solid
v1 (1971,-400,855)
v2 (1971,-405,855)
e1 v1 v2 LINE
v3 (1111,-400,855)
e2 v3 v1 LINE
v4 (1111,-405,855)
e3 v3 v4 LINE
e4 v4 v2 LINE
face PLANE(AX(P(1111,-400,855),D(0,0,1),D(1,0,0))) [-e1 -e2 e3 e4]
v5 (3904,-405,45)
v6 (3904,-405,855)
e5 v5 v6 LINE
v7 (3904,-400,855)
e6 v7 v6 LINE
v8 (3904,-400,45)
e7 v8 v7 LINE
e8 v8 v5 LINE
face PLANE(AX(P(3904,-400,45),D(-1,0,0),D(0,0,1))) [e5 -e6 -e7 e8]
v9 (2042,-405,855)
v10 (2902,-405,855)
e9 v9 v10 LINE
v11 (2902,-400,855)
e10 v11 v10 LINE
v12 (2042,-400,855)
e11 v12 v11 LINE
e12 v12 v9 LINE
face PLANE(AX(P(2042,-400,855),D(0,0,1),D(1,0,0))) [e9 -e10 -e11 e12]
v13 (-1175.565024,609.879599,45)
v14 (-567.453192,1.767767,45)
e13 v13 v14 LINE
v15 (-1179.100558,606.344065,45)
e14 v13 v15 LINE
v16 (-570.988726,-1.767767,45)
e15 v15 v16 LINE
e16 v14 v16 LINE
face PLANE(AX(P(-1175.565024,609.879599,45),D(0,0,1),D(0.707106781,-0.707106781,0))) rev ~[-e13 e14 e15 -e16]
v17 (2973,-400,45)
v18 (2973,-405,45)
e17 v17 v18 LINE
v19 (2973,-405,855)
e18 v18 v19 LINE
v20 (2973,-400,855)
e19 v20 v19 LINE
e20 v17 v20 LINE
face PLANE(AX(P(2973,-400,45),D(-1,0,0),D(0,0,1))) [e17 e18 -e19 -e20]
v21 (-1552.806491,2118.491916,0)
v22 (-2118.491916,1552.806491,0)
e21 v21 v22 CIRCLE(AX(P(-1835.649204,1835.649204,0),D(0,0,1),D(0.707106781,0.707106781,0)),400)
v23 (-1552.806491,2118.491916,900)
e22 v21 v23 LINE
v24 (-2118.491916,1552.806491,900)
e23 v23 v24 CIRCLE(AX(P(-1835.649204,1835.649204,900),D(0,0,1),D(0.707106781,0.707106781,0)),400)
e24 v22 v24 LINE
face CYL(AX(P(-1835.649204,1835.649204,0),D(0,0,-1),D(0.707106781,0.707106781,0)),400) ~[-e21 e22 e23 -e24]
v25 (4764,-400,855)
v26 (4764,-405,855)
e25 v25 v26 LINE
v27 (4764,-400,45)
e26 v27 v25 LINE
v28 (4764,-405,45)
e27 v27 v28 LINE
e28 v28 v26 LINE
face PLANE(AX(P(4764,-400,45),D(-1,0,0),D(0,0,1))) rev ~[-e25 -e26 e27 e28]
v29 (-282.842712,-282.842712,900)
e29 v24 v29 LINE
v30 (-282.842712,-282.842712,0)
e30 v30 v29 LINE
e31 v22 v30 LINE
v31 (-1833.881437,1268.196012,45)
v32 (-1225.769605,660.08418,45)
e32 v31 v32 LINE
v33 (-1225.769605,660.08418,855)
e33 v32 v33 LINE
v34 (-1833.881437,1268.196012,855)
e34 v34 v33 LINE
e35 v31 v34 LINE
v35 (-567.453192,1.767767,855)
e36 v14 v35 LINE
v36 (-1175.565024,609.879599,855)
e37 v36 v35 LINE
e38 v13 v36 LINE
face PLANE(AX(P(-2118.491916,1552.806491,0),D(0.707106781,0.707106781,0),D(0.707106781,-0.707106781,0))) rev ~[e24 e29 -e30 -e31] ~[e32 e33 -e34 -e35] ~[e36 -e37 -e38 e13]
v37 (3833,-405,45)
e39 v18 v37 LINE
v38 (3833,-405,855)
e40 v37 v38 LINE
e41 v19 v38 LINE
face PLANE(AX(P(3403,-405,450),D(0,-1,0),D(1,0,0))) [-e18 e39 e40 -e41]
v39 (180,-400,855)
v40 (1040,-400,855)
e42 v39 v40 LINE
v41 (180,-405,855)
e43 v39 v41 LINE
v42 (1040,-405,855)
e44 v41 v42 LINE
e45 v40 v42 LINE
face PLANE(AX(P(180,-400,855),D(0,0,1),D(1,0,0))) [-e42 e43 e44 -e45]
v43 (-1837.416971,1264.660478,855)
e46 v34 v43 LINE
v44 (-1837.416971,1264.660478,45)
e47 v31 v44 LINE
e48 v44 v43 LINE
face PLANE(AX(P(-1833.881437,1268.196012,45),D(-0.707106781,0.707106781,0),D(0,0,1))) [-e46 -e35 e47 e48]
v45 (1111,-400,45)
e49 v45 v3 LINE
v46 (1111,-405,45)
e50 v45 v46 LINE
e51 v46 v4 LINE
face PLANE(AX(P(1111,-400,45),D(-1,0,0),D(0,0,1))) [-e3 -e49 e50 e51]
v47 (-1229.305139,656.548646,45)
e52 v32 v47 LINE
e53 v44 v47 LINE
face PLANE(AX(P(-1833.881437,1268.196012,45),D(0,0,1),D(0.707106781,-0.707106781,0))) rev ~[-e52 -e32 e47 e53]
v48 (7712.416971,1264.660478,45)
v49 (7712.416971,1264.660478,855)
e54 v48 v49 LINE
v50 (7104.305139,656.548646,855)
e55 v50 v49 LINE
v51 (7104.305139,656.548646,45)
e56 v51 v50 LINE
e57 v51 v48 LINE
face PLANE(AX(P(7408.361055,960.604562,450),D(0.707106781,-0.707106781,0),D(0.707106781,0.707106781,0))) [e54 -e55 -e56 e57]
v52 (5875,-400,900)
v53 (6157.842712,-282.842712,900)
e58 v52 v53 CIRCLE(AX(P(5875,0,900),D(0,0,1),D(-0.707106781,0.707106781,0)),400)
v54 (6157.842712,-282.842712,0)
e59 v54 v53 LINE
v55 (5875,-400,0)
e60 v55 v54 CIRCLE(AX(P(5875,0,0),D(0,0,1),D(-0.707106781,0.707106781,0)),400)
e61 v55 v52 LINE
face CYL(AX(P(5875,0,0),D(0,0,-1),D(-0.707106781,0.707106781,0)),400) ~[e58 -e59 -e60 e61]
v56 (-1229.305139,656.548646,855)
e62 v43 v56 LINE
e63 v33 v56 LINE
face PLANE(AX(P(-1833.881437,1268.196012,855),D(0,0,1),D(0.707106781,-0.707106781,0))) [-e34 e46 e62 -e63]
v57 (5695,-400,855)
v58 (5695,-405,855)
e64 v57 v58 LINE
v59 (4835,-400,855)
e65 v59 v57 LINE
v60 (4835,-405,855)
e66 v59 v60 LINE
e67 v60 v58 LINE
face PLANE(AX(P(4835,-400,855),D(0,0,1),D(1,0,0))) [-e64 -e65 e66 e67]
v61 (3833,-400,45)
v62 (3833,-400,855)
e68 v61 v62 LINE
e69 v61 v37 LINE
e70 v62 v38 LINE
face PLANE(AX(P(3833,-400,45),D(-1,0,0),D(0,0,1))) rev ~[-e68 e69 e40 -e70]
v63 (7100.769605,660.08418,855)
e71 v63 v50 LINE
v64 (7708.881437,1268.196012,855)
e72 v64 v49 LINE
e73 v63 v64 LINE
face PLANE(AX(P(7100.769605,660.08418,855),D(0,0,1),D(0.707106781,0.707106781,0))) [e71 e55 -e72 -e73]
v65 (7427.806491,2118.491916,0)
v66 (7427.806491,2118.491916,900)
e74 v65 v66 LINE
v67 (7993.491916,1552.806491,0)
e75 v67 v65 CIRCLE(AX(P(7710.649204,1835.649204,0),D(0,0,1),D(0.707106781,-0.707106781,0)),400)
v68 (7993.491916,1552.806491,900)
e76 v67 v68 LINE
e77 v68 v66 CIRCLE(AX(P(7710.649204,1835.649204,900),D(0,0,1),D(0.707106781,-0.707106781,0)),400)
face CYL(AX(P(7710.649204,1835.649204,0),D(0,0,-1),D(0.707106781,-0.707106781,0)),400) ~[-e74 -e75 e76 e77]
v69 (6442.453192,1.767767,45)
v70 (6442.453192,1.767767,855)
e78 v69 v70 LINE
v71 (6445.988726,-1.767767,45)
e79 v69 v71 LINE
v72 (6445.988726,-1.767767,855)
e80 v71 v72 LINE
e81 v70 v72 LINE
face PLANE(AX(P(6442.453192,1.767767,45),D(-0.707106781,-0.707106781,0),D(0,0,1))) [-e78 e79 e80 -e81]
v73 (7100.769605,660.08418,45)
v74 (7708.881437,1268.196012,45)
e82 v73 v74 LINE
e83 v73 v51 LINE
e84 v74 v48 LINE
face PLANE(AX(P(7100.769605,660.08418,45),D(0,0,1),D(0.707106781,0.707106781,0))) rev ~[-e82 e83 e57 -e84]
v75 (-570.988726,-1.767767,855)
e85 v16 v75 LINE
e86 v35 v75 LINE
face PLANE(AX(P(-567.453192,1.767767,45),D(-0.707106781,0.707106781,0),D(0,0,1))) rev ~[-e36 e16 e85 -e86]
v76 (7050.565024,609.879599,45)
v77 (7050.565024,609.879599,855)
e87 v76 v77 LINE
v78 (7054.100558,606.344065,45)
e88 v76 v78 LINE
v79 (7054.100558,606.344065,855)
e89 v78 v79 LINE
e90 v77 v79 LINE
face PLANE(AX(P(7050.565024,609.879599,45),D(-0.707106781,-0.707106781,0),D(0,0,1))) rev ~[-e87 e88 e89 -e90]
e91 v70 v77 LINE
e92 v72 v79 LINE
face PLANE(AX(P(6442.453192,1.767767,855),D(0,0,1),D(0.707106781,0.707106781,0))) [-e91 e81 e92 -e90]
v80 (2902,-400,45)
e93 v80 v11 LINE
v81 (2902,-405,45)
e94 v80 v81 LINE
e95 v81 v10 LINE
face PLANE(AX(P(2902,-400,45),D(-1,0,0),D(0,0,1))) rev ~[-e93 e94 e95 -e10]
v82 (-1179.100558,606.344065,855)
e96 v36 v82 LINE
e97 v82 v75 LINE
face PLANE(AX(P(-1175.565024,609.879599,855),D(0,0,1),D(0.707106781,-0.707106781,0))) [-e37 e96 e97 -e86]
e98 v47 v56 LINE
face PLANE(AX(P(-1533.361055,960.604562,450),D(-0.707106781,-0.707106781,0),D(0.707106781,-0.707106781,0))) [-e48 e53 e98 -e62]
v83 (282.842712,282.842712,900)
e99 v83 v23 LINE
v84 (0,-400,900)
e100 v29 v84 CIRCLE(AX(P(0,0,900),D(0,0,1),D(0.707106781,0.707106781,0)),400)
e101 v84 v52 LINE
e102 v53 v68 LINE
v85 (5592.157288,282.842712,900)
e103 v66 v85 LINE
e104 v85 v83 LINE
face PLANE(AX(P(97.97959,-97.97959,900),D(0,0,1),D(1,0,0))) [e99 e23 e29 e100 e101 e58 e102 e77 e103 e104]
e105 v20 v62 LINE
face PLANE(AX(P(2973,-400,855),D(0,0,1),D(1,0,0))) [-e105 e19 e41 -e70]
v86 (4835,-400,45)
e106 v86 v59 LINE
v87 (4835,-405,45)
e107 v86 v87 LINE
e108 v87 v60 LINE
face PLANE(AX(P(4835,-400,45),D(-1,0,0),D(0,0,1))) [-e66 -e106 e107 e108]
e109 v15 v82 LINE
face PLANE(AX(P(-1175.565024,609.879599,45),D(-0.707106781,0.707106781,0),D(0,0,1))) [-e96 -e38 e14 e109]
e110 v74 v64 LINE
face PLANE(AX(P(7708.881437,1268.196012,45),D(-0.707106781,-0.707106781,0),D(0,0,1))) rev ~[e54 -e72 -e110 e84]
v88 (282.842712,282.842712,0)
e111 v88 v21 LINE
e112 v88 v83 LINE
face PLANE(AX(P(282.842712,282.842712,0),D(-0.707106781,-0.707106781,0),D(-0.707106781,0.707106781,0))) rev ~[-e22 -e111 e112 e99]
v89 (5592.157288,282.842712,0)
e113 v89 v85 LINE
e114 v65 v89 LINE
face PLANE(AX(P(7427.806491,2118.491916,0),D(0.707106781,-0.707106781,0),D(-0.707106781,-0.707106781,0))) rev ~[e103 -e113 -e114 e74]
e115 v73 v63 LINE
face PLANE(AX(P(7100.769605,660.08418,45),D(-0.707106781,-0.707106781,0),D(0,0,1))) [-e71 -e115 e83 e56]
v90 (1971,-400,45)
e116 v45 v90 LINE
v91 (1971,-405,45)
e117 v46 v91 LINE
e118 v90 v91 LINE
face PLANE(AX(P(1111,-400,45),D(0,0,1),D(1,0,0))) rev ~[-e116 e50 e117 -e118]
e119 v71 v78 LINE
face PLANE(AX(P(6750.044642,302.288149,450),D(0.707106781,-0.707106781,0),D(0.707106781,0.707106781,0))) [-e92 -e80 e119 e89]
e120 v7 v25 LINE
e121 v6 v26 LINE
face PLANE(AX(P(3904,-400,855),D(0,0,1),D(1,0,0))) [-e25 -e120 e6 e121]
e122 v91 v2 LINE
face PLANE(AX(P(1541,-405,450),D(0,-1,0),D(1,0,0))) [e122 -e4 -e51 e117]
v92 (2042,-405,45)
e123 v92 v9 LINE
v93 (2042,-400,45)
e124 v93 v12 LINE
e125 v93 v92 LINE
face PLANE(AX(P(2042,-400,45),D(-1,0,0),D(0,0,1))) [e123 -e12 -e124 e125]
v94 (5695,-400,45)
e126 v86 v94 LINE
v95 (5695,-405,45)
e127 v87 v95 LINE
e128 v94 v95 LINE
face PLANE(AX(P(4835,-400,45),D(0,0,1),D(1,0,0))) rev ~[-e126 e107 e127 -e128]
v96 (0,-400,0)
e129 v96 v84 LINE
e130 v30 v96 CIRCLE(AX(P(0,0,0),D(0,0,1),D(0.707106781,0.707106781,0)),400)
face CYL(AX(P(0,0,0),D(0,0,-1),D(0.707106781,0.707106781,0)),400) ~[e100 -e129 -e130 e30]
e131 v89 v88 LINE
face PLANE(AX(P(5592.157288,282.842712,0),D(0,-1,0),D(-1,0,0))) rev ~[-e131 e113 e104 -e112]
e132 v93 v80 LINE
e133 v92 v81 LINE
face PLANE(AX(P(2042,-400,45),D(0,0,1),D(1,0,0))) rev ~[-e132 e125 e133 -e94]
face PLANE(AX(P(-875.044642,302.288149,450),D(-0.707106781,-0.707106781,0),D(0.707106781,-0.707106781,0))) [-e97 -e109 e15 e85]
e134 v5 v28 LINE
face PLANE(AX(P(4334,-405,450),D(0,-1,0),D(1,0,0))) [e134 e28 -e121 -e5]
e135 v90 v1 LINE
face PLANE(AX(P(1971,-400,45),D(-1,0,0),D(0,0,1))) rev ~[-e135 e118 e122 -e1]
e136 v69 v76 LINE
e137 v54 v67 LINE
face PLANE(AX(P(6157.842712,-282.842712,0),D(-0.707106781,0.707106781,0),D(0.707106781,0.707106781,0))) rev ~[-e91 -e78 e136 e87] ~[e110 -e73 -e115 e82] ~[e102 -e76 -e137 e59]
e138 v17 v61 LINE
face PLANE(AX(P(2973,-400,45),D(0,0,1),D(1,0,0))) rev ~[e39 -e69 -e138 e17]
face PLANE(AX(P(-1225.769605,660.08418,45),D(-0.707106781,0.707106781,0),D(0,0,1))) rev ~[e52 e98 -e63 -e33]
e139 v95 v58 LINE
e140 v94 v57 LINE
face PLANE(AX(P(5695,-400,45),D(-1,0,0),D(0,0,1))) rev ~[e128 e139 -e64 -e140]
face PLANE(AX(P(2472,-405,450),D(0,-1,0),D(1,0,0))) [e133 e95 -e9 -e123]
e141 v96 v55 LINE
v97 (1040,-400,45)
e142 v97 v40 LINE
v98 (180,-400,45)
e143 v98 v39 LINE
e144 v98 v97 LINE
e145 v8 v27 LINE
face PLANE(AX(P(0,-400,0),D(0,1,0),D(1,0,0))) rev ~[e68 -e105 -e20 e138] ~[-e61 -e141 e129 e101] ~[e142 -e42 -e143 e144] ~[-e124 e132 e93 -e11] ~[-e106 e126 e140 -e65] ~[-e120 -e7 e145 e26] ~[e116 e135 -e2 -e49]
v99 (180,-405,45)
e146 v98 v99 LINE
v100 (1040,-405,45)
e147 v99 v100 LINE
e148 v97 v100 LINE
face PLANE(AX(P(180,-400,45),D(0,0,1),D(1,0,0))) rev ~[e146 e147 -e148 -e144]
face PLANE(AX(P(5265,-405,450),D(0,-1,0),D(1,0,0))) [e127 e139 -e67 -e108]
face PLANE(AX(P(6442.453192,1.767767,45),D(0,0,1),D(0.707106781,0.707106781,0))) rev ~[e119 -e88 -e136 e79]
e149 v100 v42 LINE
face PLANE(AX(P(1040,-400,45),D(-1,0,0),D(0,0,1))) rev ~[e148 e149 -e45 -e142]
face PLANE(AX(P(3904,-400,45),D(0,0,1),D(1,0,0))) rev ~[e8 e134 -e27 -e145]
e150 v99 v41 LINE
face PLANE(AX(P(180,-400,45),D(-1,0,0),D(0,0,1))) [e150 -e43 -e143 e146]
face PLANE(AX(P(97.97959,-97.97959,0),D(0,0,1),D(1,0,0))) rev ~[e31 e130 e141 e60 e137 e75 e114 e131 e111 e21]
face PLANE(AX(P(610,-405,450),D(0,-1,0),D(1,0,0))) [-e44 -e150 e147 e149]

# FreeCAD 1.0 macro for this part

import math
import FreeCAD as App
import Part
import Sketcher

V = App.Vector

doc = App.newDocument("Part")
body = doc.addObject("PartDesign::Body", "Body")

# Sketch on XY plane
sketch1 = body.newObject("Sketcher::SketchObject", "Sketch")
sketch1.AttachmentSupport = (doc.getObject("XY_Plane"), [""])
sketch1.MapMode = "FlatFace"
sketch1.addGeometry([
    Part.LineSegment(V(0, -400, 0), V(5875, -400, 0)),  # 0
    Part.ArcOfCircle(Part.Circle(V(5875, 0, 0), V(0, 0, 1), 400), math.radians(-90), math.radians(-45)),  # 1
    Part.LineSegment(V(6158, -283, 0), V(7993, 1553, 0)),  # 2
    Part.ArcOfCircle(Part.Circle(V(7711, 1836, 0), V(0, 0, 1), 400), math.radians(-45), math.radians(135)),  # 3
    Part.LineSegment(V(7428, 2118, 0), V(5592, 283, 0)),  # 4
    Part.LineSegment(V(5592, 283, 0), V(283, 283, 0)),  # 5
    Part.LineSegment(V(283, 283, 0), V(-1553, 2118, 0)),  # 6
    Part.ArcOfCircle(Part.Circle(V(-1836, 1836, 0), V(0, 0, 1), 400), math.radians(45), math.radians(225)),  # 7
    Part.LineSegment(V(-2118, 1553, 0), V(-283, -283, 0)),  # 8
    Part.ArcOfCircle(Part.Circle(V(0, 0, 0), V(0, 0, 1), 400), math.radians(-135), math.radians(-90)),  # 9
], False)
sketch1.addConstraint([
    Sketcher.Constraint("Tangent", 0, 2, 1, 1),
    Sketcher.Constraint("Tangent", 1, 2, 2, 1),
    Sketcher.Constraint("Tangent", 2, 2, 3, 1),
    Sketcher.Constraint("Tangent", 3, 2, 4, 1),
    Sketcher.Constraint("Coincident", 4, 2, 5, 1),
    Sketcher.Constraint("Coincident", 5, 2, 6, 1),
    Sketcher.Constraint("Tangent", 6, 2, 7, 1),
    Sketcher.Constraint("Tangent", 7, 2, 8, 1),
    Sketcher.Constraint("Tangent", 8, 2, 9, 1),
    Sketcher.Constraint("Tangent", 9, 2, 0, 1),
    Sketcher.Constraint("Horizontal", 0),
    Sketcher.Constraint("Horizontal", 5),
    Sketcher.Constraint("Coincident", 9, 3, -1, 1),
    Sketcher.Constraint("Equal", 1, 3),
    Sketcher.Constraint("Equal", 3, 7),
    Sketcher.Constraint("Equal", 7, 9),
    Sketcher.Constraint("Symmetric", 5, 2, 8, 2, -1, 1),
    Sketcher.Constraint("Parallel", 2, 4),
    Sketcher.Constraint("Perpendicular", 4, 6),
    Sketcher.Constraint("Horizontal", 3, 3, 7, 3),
    Sketcher.Constraint("Equal", 2, 4),
    Sketcher.Constraint("Radius", 1, 400.0),
    Sketcher.Constraint("DistanceX", 0, 1, 0, 2, 5875.0),
    Sketcher.Constraint("Distance", 2, 2596.0),
])
pad1 = body.newObject("PartDesign::Pad", "Pad")
pad1.Profile = sketch1
pad1.Length = 900

# Sketch on XZ plane
sketch2 = body.newObject("Sketcher::SketchObject", "Sketch001")
sketch2.AttachmentSupport = (doc.getObject("XZ_Plane"), [""])
sketch2.MapMode = "FlatFace"
sketch2.AttachmentOffset = App.Placement(V(0, 0, 400), App.Rotation())
sketch2.addGeometry([
    Part.LineSegment(V(180, 855, 0), V(180, 45, 0)),  # 0
    Part.LineSegment(V(180, 45, 0), V(1040, 45, 0)),  # 1
    Part.LineSegment(V(1040, 45, 0), V(1040, 855, 0)),  # 2
    Part.LineSegment(V(1040, 855, 0), V(180, 855, 0)),  # 3
    Part.LineSegment(V(1111, 855, 0), V(1111, 45, 0)),  # 4
    Part.LineSegment(V(1111, 45, 0), V(1971, 45, 0)),  # 5
    Part.LineSegment(V(1971, 45, 0), V(1971, 855, 0)),  # 6
    Part.LineSegment(V(1971, 855, 0), V(1111, 855, 0)),  # 7
    Part.LineSegment(V(2042, 855, 0), V(2042, 45, 0)),  # 8
    Part.LineSegment(V(2042, 45, 0), V(2902, 45, 0)),  # 9
    Part.LineSegment(V(2902, 45, 0), V(2902, 855, 0)),  # 10
    Part.LineSegment(V(2902, 855, 0), V(2042, 855, 0)),  # 11
    Part.LineSegment(V(2973, 855, 0), V(2973, 45, 0)),  # 12
    Part.LineSegment(V(2973, 45, 0), V(3833, 45, 0)),  # 13
    Part.LineSegment(V(3833, 45, 0), V(3833, 855, 0)),  # 14
    Part.LineSegment(V(3833, 855, 0), V(2973, 855, 0)),  # 15
    Part.LineSegment(V(3904, 855, 0), V(3904, 45, 0)),  # 16
    Part.LineSegment(V(3904, 45, 0), V(4764, 45, 0)),  # 17
    Part.LineSegment(V(4764, 45, 0), V(4764, 855, 0)),  # 18
    Part.LineSegment(V(4764, 855, 0), V(3904, 855, 0)),  # 19
    Part.LineSegment(V(4835, 855, 0), V(4835, 45, 0)),  # 20
    Part.LineSegment(V(4835, 45, 0), V(5695, 45, 0)),  # 21
    Part.LineSegment(V(5695, 45, 0), V(5695, 855, 0)),  # 22
    Part.LineSegment(V(5695, 855, 0), V(4835, 855, 0)),  # 23
], False)
sketch2.addConstraint([
    Sketcher.Constraint("Coincident", 0, 2, 1, 1),
    Sketcher.Constraint("Coincident", 1, 2, 2, 1),
    Sketcher.Constraint("Coincident", 2, 2, 3, 1),
    Sketcher.Constraint("Coincident", 3, 2, 0, 1),
    Sketcher.Constraint("Coincident", 4, 2, 5, 1),
    Sketcher.Constraint("Coincident", 5, 2, 6, 1),
    Sketcher.Constraint("Coincident", 6, 2, 7, 1),
    Sketcher.Constraint("Coincident", 7, 2, 4, 1),
    Sketcher.Constraint("Coincident", 8, 2, 9, 1),
    Sketcher.Constraint("Coincident", 9, 2, 10, 1),
    Sketcher.Constraint("Coincident", 10, 2, 11, 1),
    Sketcher.Constraint("Coincident", 11, 2, 8, 1),
    Sketcher.Constraint("Coincident", 12, 2, 13, 1),
    Sketcher.Constraint("Coincident", 13, 2, 14, 1),
    Sketcher.Constraint("Coincident", 14, 2, 15, 1),
    Sketcher.Constraint("Coincident", 15, 2, 12, 1),
    Sketcher.Constraint("Coincident", 16, 2, 17, 1),
    Sketcher.Constraint("Coincident", 17, 2, 18, 1),
    Sketcher.Constraint("Coincident", 18, 2, 19, 1),
    Sketcher.Constraint("Coincident", 19, 2, 16, 1),
    Sketcher.Constraint("Coincident", 20, 2, 21, 1),
    Sketcher.Constraint("Coincident", 21, 2, 22, 1),
    Sketcher.Constraint("Coincident", 22, 2, 23, 1),
    Sketcher.Constraint("Coincident", 23, 2, 20, 1),
    Sketcher.Constraint("Vertical", 0),
    Sketcher.Constraint("Horizontal", 1),
    Sketcher.Constraint("Vertical", 2),
    Sketcher.Constraint("Horizontal", 3),
    Sketcher.Constraint("Vertical", 4),
    Sketcher.Constraint("Horizontal", 5),
    Sketcher.Constraint("Vertical", 6),
    Sketcher.Constraint("Horizontal", 7),
    Sketcher.Constraint("Vertical", 8),
    Sketcher.Constraint("Horizontal", 9),
    Sketcher.Constraint("Vertical", 10),
    Sketcher.Constraint("Horizontal", 11),
    Sketcher.Constraint("Vertical", 12),
    Sketcher.Constraint("Horizontal", 13),
    Sketcher.Constraint("Vertical", 14),
    Sketcher.Constraint("Horizontal", 15),
    Sketcher.Constraint("Vertical", 16),
    Sketcher.Constraint("Horizontal", 17),
    Sketcher.Constraint("Vertical", 18),
    Sketcher.Constraint("Horizontal", 19),
    Sketcher.Constraint("Vertical", 20),
    Sketcher.Constraint("Horizontal", 21),
    Sketcher.Constraint("Vertical", 22),
    Sketcher.Constraint("Horizontal", 23),
    Sketcher.Constraint("Horizontal", 1, 2, 4, 2),
    Sketcher.Constraint("Horizontal", 3, 2, 6, 2),
    Sketcher.Constraint("Horizontal", 5, 2, 8, 2),
    Sketcher.Constraint("Horizontal", 7, 2, 10, 2),
    Sketcher.Constraint("Horizontal", 9, 2, 12, 2),
    Sketcher.Constraint("Horizontal", 11, 2, 14, 2),
    Sketcher.Constraint("Horizontal", 13, 2, 16, 2),
    Sketcher.Constraint("Horizontal", 15, 2, 18, 2),
    Sketcher.Constraint("Horizontal", 17, 2, 20, 2),
    Sketcher.Constraint("Horizontal", 19, 2, 22, 2),
    Sketcher.Constraint("Equal", 3, 5),
    Sketcher.Constraint("Equal", 7, 9),
    Sketcher.Constraint("Equal", 11, 13),
    Sketcher.Constraint("Equal", 15, 17),
    Sketcher.Constraint("Equal", 19, 21),
    Sketcher.Constraint("DistanceX", 1, 1, 1, 2, 860.0),
    Sketcher.Constraint("DistanceY", 0, 2, 0, 1, 810.0),
    Sketcher.Constraint("DistanceX", -1, 1, 0, 2, 180.0),
    Sketcher.Constraint("DistanceY", -1, 1, 0, 2, 45.0),
    Sketcher.Constraint("DistanceX", -1, 1, 4, 2, 1111.0),
    Sketcher.Constraint("DistanceX", -1, 1, 8, 2, 2042.0),
    Sketcher.Constraint("DistanceX", -1, 1, 12, 2, 2973.0),
    Sketcher.Constraint("DistanceX", -1, 1, 16, 2, 3904.0),
    Sketcher.Constraint("DistanceX", -1, 1, 20, 2, 4835.0),
])
pad2 = body.newObject("PartDesign::Pad", "Pad001")
pad2.Profile = sketch2
pad2.Length = 5

# Sketch on an angled plane
sketch3 = body.newObject("Sketcher::SketchObject", "Sketch002")
sketch3.Placement = App.Placement(V(-282.842712, -282.842712, 0), App.Rotation(V(0.707106781, -0.707106781, 0), V(0, 0, 0.999999999), V(-0.707106781, -0.707106781, 0), "ZXY"))
sketch3.addGeometry([
    Part.LineSegment(V(-2193, 855, 0), V(-2193, 45, 0)),  # 0
    Part.LineSegment(V(-2193, 45, 0), V(-1333, 45, 0)),  # 1
    Part.LineSegment(V(-1333, 45, 0), V(-1333, 855, 0)),  # 2
    Part.LineSegment(V(-1333, 855, 0), V(-2193, 855, 0)),  # 3
    Part.LineSegment(V(-1262, 855, 0), V(-1262, 45, 0)),  # 4
    Part.LineSegment(V(-1262, 45, 0), V(-402, 45, 0)),  # 5
    Part.LineSegment(V(-402, 45, 0), V(-402, 855, 0)),  # 6
    Part.LineSegment(V(-402, 855, 0), V(-1262, 855, 0)),  # 7
], False)
sketch3.addConstraint([
    Sketcher.Constraint("Coincident", 0, 2, 1, 1),
    Sketcher.Constraint("Coincident", 1, 2, 2, 1),
    Sketcher.Constraint("Coincident", 2, 2, 3, 1),
    Sketcher.Constraint("Coincident", 3, 2, 0, 1),
    Sketcher.Constraint("Coincident", 4, 2, 5, 1),
    Sketcher.Constraint("Coincident", 5, 2, 6, 1),
    Sketcher.Constraint("Coincident", 6, 2, 7, 1),
    Sketcher.Constraint("Coincident", 7, 2, 4, 1),
    Sketcher.Constraint("Vertical", 0),
    Sketcher.Constraint("Horizontal", 1),
    Sketcher.Constraint("Vertical", 2),
    Sketcher.Constraint("Horizontal", 3),
    Sketcher.Constraint("Vertical", 4),
    Sketcher.Constraint("Horizontal", 5),
    Sketcher.Constraint("Vertical", 6),
    Sketcher.Constraint("Horizontal", 7),
    Sketcher.Constraint("Horizontal", 1, 2, 4, 2),
    Sketcher.Constraint("Horizontal", 3, 2, 6, 2),
    Sketcher.Constraint("Equal", 3, 5),
    Sketcher.Constraint("DistanceX", 1, 1, 1, 2, 860.0),
    Sketcher.Constraint("DistanceY", 0, 2, 0, 1, 809.999999),
    Sketcher.Constraint("DistanceY", -1, 1, 0, 2, 45.0),
    Sketcher.Constraint("DistanceX", 1, 2, 4, 2, 71.0),
    Sketcher.Constraint("DistanceX", 0, 2, -1, 1, 2193.499999),
])
pad3 = body.newObject("PartDesign::Pad", "Pad002")
pad3.Profile = sketch3
pad3.Length = 5

# Sketch on an angled plane
sketch4 = body.newObject("Sketcher::SketchObject", "Sketch003")
sketch4.Placement = App.Placement(V(3220.342712, -3220.342712, 0), App.Rotation(V(0.707106781, 0.707106781, 0), V(0, 0, 0.999999999), V(0.707106781, -0.707106781, 0), "ZXY"))
sketch4.addGeometry([
    Part.LineSegment(V(4557, 855, 0), V(4557, 45, 0)),  # 0
    Part.LineSegment(V(4557, 45, 0), V(5417, 45, 0)),  # 1
    Part.LineSegment(V(5417, 45, 0), V(5417, 855, 0)),  # 2
    Part.LineSegment(V(5417, 855, 0), V(4557, 855, 0)),  # 3
    Part.LineSegment(V(5488, 855, 0), V(5488, 45, 0)),  # 4
    Part.LineSegment(V(5488, 45, 0), V(6348, 45, 0)),  # 5
    Part.LineSegment(V(6348, 45, 0), V(6348, 855, 0)),  # 6
    Part.LineSegment(V(6348, 855, 0), V(5488, 855, 0)),  # 7
], False)
sketch4.addConstraint([
    Sketcher.Constraint("Coincident", 0, 2, 1, 1),
    Sketcher.Constraint("Coincident", 1, 2, 2, 1),
    Sketcher.Constraint("Coincident", 2, 2, 3, 1),
    Sketcher.Constraint("Coincident", 3, 2, 0, 1),
    Sketcher.Constraint("Coincident", 4, 2, 5, 1),
    Sketcher.Constraint("Coincident", 5, 2, 6, 1),
    Sketcher.Constraint("Coincident", 6, 2, 7, 1),
    Sketcher.Constraint("Coincident", 7, 2, 4, 1),
    Sketcher.Constraint("Vertical", 0),
    Sketcher.Constraint("Horizontal", 1),
    Sketcher.Constraint("Vertical", 2),
    Sketcher.Constraint("Horizontal", 3),
    Sketcher.Constraint("Vertical", 4),
    Sketcher.Constraint("Horizontal", 5),
    Sketcher.Constraint("Vertical", 6),
    Sketcher.Constraint("Horizontal", 7),
    Sketcher.Constraint("Horizontal", 1, 2, 4, 2),
    Sketcher.Constraint("Horizontal", 3, 2, 6, 2),
    Sketcher.Constraint("Equal", 3, 5),
    Sketcher.Constraint("DistanceX", 1, 1, 1, 2, 860.0),
    Sketcher.Constraint("DistanceY", 0, 2, 0, 1, 809.999999),
    Sketcher.Constraint("DistanceY", -1, 1, 0, 2, 45.0),
    Sketcher.Constraint("DistanceX", 1, 2, 4, 2, 71.0),
    Sketcher.Constraint("DistanceX", -1, 1, 0, 2, 4556.752337),
])
pad4 = body.newObject("PartDesign::Pad", "Pad003")
pad4.Profile = sketch4
pad4.Length = 5

doc.recompute()
